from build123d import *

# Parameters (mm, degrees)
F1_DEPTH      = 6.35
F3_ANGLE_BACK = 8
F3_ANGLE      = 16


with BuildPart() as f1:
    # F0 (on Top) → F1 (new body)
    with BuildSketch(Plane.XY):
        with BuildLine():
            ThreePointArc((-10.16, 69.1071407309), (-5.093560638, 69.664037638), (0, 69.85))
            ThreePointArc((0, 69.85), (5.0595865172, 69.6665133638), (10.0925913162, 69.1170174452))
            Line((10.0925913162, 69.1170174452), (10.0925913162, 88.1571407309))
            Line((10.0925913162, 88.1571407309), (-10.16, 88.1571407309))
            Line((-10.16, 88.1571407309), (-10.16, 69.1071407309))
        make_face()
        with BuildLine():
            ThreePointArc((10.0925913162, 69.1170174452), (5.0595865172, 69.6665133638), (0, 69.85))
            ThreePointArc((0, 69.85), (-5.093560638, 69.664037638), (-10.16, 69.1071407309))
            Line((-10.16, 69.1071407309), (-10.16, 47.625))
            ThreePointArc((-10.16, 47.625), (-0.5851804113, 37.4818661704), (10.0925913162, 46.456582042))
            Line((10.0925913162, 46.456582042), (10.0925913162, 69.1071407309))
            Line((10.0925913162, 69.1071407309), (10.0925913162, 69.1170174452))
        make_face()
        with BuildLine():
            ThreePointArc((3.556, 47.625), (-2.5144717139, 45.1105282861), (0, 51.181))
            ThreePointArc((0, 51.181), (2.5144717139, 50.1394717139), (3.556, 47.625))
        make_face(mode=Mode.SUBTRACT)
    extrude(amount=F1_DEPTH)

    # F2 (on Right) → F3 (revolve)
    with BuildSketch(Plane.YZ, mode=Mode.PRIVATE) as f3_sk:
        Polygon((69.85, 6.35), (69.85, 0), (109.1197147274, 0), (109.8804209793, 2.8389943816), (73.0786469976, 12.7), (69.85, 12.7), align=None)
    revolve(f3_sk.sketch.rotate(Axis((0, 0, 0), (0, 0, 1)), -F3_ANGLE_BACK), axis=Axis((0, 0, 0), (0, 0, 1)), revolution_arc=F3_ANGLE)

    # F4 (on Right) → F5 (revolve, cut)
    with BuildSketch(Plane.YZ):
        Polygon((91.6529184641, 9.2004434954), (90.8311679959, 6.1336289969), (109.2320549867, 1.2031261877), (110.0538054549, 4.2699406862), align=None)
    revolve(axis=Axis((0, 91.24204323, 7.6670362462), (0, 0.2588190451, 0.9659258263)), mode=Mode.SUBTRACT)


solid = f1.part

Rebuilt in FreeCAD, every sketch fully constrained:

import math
import FreeCAD as App
import Part
import Sketcher
from FreeCAD import Vector
Q = App.Units.Quantity

doc = App.newDocument("Part")
params = doc.addObject("Spreadsheet::Sheet", "Params")
for row, (alias, value) in enumerate([
    ("sketch1_radius", "0.4 in"),
    ("sketch1_diameter", "0.28 in"),
    ("pad1_length", "0.25 in"),
    ("sketch2_height", "0.5 in"),
    ("sketch2_length", "1.5 in"),
    ("revolution_angle", "16 deg"),
    ("sketch3_length", "0.75 in"),
    ("sketch3_length2", "0.125 in"),
    ("groove_angle", "360 deg"),
], start=1):
    params.set(f"A{row}", alias)
    params.set(f"B{row}", "=" + value)
    params.setAlias(f"B{row}", alias)

body = doc.addObject("PartDesign::Body", "Body")

sketch1 = body.newObject("Sketcher::SketchObject", "Sketch")
sketch1.AttachmentSupport = (doc.getObject("XY_Plane"), [""])
sketch1.MapMode = "FlatFace"
sketch1.addGeometry([
    Part.LineSegment(Vector(10.1, 88.2, 0), Vector(-10.2, 88.2, 0)),
    Part.LineSegment(Vector(-10.2, 88.2, 0), Vector(-10.2, 47.6, 0)),
    Part.ArcOfCircle(Part.Circle(Vector(0, 47.6, 0), Vector(0, 0, 1), 10.2), math.radians(180), math.radians(353)),
    Part.LineSegment(Vector(10.1, 46.5, 0), Vector(10.1, 88.2, 0)),
    Part.Circle(Vector(0, 47.6, 0), Vector(0, 0, 1), 3.6),
], False)
sketch1.addConstraint([
    Sketcher.Constraint("Coincident", 0, 2, 1, 1),
    Sketcher.Constraint("Tangent", 1, 2, 2, 1),
    Sketcher.Constraint("Coincident", 2, 2, 3, 1),
    Sketcher.Constraint("Coincident", 3, 2, 0, 1),
    Sketcher.Constraint("Horizontal", 0),
    Sketcher.Constraint("Vertical", 1),
    Sketcher.Constraint("Vertical", 3),
    Sketcher.Constraint("Coincident", 4, 3, 2, 3),
    Sketcher.Constraint("PointOnObject", 2, 3, -2),
    Sketcher.Constraint("Radius", 2, Q("0.4 in")),
    Sketcher.Constraint("Diameter", 4, Q("0.28 in")),
    Sketcher.Constraint("DistanceY", -1, 1, 2, 3, Q("1.875 in")),
    Sketcher.Constraint("DistanceX", 0, 2, 0, 1, 20.252591),
    Sketcher.Constraint("DistanceY", 1, 2, 1, 1, 40.532141),
])
sketch1.setExpression("Constraints[9]", "Params.sketch1_radius")
sketch1.setExpression("Constraints[10]", "Params.sketch1_diameter")
pad1 = body.newObject("PartDesign::Pad", "Pad")
pad1.Profile = sketch1
pad1.setExpression("Length", "Params.pad1_length")

sketch2 = body.newObject("Sketcher::SketchObject", "Sketch001")
sketch2.Placement = App.Placement(Vector(0, 0, 0), App.Rotation(Vector(0.139173101, 0.990268069, 0), Vector(0, 0, 1.000000001), Vector(0.990268069, -0.139173101, 0), "ZXY"))
sketch2.addGeometry([
    Part.LineSegment(Vector(69.9, 0, 0), Vector(109.1, 0, 0)),
    Part.LineSegment(Vector(109.1, 0, 0), Vector(109.9, 2.8, 0)),
    Part.LineSegment(Vector(109.9, 2.8, 0), Vector(73.1, 12.7, 0)),
    Part.LineSegment(Vector(73.1, 12.7, 0), Vector(69.9, 12.7, 0)),
    Part.LineSegment(Vector(69.9, 12.7, 0), Vector(69.9, 0, 0)),
], False)
sketch2.addConstraint([
    Sketcher.Constraint("Coincident", 0, 2, 1, 1),
    Sketcher.Constraint("Coincident", 1, 2, 2, 1),
    Sketcher.Constraint("Coincident", 2, 2, 3, 1),
    Sketcher.Constraint("Coincident", 3, 2, 4, 1),
    Sketcher.Constraint("Coincident", 4, 2, 0, 1),
    Sketcher.Constraint("Horizontal", 0),
    Sketcher.Constraint("Horizontal", 3),
    Sketcher.Constraint("Vertical", 4),
    Sketcher.Constraint("PointOnObject", 0, 2, -1),
    Sketcher.Constraint("Perpendicular", 1, 2),
    Sketcher.Constraint("DistanceY", 4, 2, 4, 1, Q("0.5 in")),
    Sketcher.Constraint("Angle", 1, Q("75 deg")),
    Sketcher.Constraint("Distance", 2, Q("1.5 in")),
    Sketcher.Constraint("DistanceX", -1, 1, 3, 2, Q("2.75 in")),
    Sketcher.Constraint("DistanceX", 0, 1, 0, 2, 39.269715),
])
sketch2.setExpression("Constraints[10]", "Params.sketch2_height")
sketch2.setExpression("Constraints[12]", "Params.sketch2_length")
revolution = body.newObject("PartDesign::Revolution", "Revolution")
revolution.Profile = sketch2
revolution.ReferenceAxis = (sketch2, ["V_Axis"])
revolution.setExpression("Angle", "Params.revolution_angle")

sketch3 = body.newObject("Sketcher::SketchObject", "Sketch002")
sketch3.AttachmentSupport = (doc.getObject("YZ_Plane"), [""])
sketch3.MapMode = "FlatFace"
sketch3.addGeometry([
    Part.LineSegment(Vector(91.7, 9.2, 0), Vector(90.8, 6.1, 0)),
    Part.LineSegment(Vector(90.8, 6.1, 0), Vector(109.2, 1.2, 0)),
    Part.LineSegment(Vector(109.2, 1.2, 0), Vector(110.1, 4.3, 0)),
    Part.LineSegment(Vector(110.1, 4.3, 0), Vector(91.7, 9.2, 0)),
], False)
sketch3.addGeometry(Part.LineSegment(Vector(90.8, 6.1, 0), Vector(91.7, 9.2, 0)), True)
sketch3.addConstraint([
    Sketcher.Constraint("Coincident", 0, 2, 1, 1),
    Sketcher.Constraint("Coincident", 1, 2, 2, 1),
    Sketcher.Constraint("Coincident", 2, 2, 3, 1),
    Sketcher.Constraint("Coincident", 3, 2, 0, 1),
    Sketcher.Constraint("Coincident", 4, 1, 0, 2),
    Sketcher.Constraint("Coincident", 4, 2, 3, 2),
    Sketcher.Constraint("Perpendicular", 0, 1),
    Sketcher.Constraint("Perpendicular", 1, 2),
    Sketcher.Constraint("Perpendicular", 2, 3),
    Sketcher.Constraint("Angle", 0, Q("-105 deg")),
    Sketcher.Constraint("Distance", 1, Q("0.75 in")),
    Sketcher.Constraint("Distance", 0, Q("0.125 in")),
    Sketcher.Constraint("DistanceY", -1, 1, 0, 2, 6.133629),
    Sketcher.Constraint("DistanceX", -1, 1, 3, 2, 91.652918),
])
sketch3.setExpression("Constraints[10]", "Params.sketch3_length")
sketch3.setExpression("Constraints[11]", "Params.sketch3_length2")
groove = body.newObject("PartDesign::Groove", "Groove")
groove.Profile = sketch3
groove.ReferenceAxis = (sketch3, ["Axis0"])
groove.setExpression("Angle", "Params.groove_angle")

doc.recompute()
